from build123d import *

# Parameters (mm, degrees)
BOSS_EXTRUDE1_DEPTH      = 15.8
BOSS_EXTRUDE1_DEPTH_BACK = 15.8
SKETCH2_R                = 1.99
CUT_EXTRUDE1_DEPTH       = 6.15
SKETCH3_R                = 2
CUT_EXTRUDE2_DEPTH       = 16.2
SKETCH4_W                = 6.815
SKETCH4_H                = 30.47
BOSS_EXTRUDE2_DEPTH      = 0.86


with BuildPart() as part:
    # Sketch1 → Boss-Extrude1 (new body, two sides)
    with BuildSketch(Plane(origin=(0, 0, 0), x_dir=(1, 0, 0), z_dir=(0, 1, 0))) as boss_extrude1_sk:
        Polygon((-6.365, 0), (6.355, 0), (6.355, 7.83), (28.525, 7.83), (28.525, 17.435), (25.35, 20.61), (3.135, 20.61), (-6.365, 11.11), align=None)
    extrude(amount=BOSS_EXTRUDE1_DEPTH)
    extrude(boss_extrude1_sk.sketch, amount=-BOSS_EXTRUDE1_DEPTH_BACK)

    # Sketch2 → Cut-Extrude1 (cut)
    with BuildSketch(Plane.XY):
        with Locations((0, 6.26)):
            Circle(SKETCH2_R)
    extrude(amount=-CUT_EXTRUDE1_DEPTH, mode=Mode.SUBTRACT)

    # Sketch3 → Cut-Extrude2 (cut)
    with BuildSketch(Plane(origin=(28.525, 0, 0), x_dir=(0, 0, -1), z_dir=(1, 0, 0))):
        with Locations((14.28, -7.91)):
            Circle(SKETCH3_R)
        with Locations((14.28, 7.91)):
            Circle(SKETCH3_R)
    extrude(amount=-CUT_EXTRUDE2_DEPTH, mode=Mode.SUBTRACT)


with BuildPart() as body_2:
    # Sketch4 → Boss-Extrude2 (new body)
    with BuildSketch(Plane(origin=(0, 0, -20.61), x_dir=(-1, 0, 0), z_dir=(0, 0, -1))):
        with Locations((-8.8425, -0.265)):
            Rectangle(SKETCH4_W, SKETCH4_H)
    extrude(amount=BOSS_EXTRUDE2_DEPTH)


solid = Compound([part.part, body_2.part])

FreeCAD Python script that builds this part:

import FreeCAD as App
import Part
import Sketcher
from FreeCAD import Vector
Q = App.Units.Quantity

doc = App.newDocument("Part")
body = doc.addObject("PartDesign::Body", "Body")

# Sketch on XZ plane
sketch1 = doc.addObject("Sketcher::SketchObject", "Sketch")
body.addObject(sketch1)
sketch1.AttachmentSupport = (doc.XZ_Plane, [""])
sketch1.MapMode = "FlatFace"
sketch1.addGeometry([
    Part.LineSegment(Vector(-6.4, 0, 0), Vector(6.4, 0, 0)),  # 0
    Part.LineSegment(Vector(6.4, 0, 0), Vector(6.4, -7.8, 0)),  # 1
    Part.LineSegment(Vector(6.4, -7.8, 0), Vector(28.5, -7.8, 0)),  # 2
    Part.LineSegment(Vector(28.5, -7.8, 0), Vector(28.5, -17.4, 0)),  # 3
    Part.LineSegment(Vector(28.5, -17.4, 0), Vector(25.4, -20.6, 0)),  # 4
    Part.LineSegment(Vector(25.4, -20.6, 0), Vector(3.1, -20.6, 0)),  # 5
    Part.LineSegment(Vector(3.1, -20.6, 0), Vector(-6.4, -11.1, 0)),  # 6
    Part.LineSegment(Vector(-6.4, -11.1, 0), Vector(-6.4, 0, 0)),  # 7
], False)
sketch1.addConstraint([
    Sketcher.Constraint("Coincident", 0, 2, 1, 1),
    Sketcher.Constraint("Coincident", 1, 2, 2, 1),
    Sketcher.Constraint("Coincident", 2, 2, 3, 1),
    Sketcher.Constraint("Coincident", 3, 2, 4, 1),
    Sketcher.Constraint("Coincident", 4, 2, 5, 1),
    Sketcher.Constraint("Coincident", 5, 2, 6, 1),
    Sketcher.Constraint("Coincident", 6, 2, 7, 1),
    Sketcher.Constraint("Coincident", 7, 2, 0, 1),
    Sketcher.Constraint("Horizontal", 0),
    Sketcher.Constraint("Vertical", 1),
    Sketcher.Constraint("Horizontal", 2),
    Sketcher.Constraint("Vertical", 3),
    Sketcher.Constraint("Horizontal", 5),
    Sketcher.Constraint("Vertical", 7),
    Sketcher.Constraint("PointOnObject", 0, 2, -1),
    Sketcher.Constraint("Perpendicular", 4, 6),
    Sketcher.Constraint("Angle", 4, Q("-135 deg")),
    Sketcher.Constraint("DistanceX", 0, 1, 0, 2, Q("12.72 mm")),
    Sketcher.Constraint("DistanceX", 2, 1, 2, 2, Q("22.17 mm")),
    Sketcher.Constraint("DistanceY", 1, 2, 1, 1, Q("7.83 mm")),
    Sketcher.Constraint("DistanceY", 7, 1, 7, 2, Q("11.11 mm")),
    Sketcher.Constraint("DistanceX", 6, 2, 5, 2, Q("9.5 mm")),
    Sketcher.Constraint("DistanceX", 5, 2, 5, 1, Q("22.215 mm")),
    Sketcher.Constraint("DistanceX", -1, 1, 4, 2, Q("25.35 mm")),
])
pad1 = doc.addObject("PartDesign::Pad", "Pad")
body.addObject(pad1)
pad1.Profile = sketch1
pad1.Type = "TwoLengths"
pad1.Length = 15.8
pad1.Length2 = 15.8
pad1.Reversed = True

# Sketch on XY plane
sketch2 = doc.addObject("Sketcher::SketchObject", "Sketch001")
body.addObject(sketch2)
sketch2.AttachmentSupport = (doc.XY_Plane, [""])
sketch2.MapMode = "FlatFace"
sketch2.addGeometry(Part.Circle(Vector(0, 6.3, 0), Vector(0, 0, 1), 2), False)
sketch2.addConstraint([
    Sketcher.Constraint("PointOnObject", 0, 3, -2),
    Sketcher.Constraint("Diameter", 0, Q("3.98 mm")),
    Sketcher.Constraint("DistanceY", -1, 1, 0, 3, Q("6.26 mm")),
])
pocket1 = doc.addObject("PartDesign::Pocket", "Pocket")
body.addObject(pocket1)
pocket1.Profile = sketch2
pocket1.Length = 6.15

# Sketch on YZ plane
sketch3 = doc.addObject("Sketcher::SketchObject", "Sketch002")
body.addObject(sketch3)
sketch3.AttachmentSupport = (doc.YZ_Plane, [""])
sketch3.MapMode = "FlatFace"
sketch3.AttachmentOffset = App.Placement(Vector(0, 0, 28.525), App.Rotation())
sketch3.addGeometry([
    Part.Circle(Vector(-7.9, -14.3, 0), Vector(0, 0, 1), 2),
    Part.Circle(Vector(7.9, -14.3, 0), Vector(0, 0, 1), 2),
], False)
sketch3.addConstraint([
    Sketcher.Constraint("Equal", 0, 1),
    Sketcher.Constraint("Symmetric", 0, 3, 1, 3, -2),
    Sketcher.Constraint("Diameter", 0, Q("4 mm")),
    Sketcher.Constraint("DistanceX", 0, 3, -1, 1, Q("7.91 mm")),
    Sketcher.Constraint("DistanceY", 0, 3, -1, 1, Q("14.28 mm")),
])
pocket2 = doc.addObject("PartDesign::Pocket", "Pocket001")
body.addObject(pocket2)
pocket2.Profile = sketch3
pocket2.Length = 16.2
body2 = doc.addObject("PartDesign::Body", "Body001")

# Sketch on XY plane
sketch4 = doc.addObject("Sketcher::SketchObject", "Sketch003")
body2.addObject(sketch4)
sketch4.AttachmentSupport = (doc.getObject("XY_Plane001"), [""])
sketch4.MapMode = "FlatFace"
sketch4.AttachmentOffset = App.Placement(Vector(0, 0, -20.61), App.Rotation())
sketch4.addGeometry([
    Part.LineSegment(Vector(12, 15, 0), Vector(12, -16, 0)),
    Part.LineSegment(Vector(12, -16, 0), Vector(5, -16, 0)),
    Part.LineSegment(Vector(5, -16, 0), Vector(5, 15, 0)),
    Part.LineSegment(Vector(5, 15, 0), Vector(12, 15, 0)),
], False)
sketch4.addConstraint([
    Sketcher.Constraint("Coincident", 0, 2, 1, 1),
    Sketcher.Constraint("Coincident", 1, 2, 2, 1),
    Sketcher.Constraint("Coincident", 2, 2, 3, 1),
    Sketcher.Constraint("Coincident", 3, 2, 0, 1),
    Sketcher.Constraint("Vertical", 0),
    Sketcher.Constraint("Horizontal", 1),
    Sketcher.Constraint("Vertical", 2),
    Sketcher.Constraint("Horizontal", 3),
    Sketcher.Constraint("DistanceY", 0, 2, 0, 1, Q("30.47 mm")),
    Sketcher.Constraint("DistanceY", 0, 2, -1, 1, Q("15.5 mm")),
    Sketcher.Constraint("DistanceX", 1, 2, 1, 1, Q("6.815 mm")),
    Sketcher.Constraint("DistanceX", -1, 1, 0, 2, Q("12.25 mm")),
])
pad2 = doc.addObject("PartDesign::Pad", "Pad001")
body2.addObject(pad2)
pad2.Profile = sketch4
pad2.Length = 0.86
pad2.Reversed = True

doc.recompute()
